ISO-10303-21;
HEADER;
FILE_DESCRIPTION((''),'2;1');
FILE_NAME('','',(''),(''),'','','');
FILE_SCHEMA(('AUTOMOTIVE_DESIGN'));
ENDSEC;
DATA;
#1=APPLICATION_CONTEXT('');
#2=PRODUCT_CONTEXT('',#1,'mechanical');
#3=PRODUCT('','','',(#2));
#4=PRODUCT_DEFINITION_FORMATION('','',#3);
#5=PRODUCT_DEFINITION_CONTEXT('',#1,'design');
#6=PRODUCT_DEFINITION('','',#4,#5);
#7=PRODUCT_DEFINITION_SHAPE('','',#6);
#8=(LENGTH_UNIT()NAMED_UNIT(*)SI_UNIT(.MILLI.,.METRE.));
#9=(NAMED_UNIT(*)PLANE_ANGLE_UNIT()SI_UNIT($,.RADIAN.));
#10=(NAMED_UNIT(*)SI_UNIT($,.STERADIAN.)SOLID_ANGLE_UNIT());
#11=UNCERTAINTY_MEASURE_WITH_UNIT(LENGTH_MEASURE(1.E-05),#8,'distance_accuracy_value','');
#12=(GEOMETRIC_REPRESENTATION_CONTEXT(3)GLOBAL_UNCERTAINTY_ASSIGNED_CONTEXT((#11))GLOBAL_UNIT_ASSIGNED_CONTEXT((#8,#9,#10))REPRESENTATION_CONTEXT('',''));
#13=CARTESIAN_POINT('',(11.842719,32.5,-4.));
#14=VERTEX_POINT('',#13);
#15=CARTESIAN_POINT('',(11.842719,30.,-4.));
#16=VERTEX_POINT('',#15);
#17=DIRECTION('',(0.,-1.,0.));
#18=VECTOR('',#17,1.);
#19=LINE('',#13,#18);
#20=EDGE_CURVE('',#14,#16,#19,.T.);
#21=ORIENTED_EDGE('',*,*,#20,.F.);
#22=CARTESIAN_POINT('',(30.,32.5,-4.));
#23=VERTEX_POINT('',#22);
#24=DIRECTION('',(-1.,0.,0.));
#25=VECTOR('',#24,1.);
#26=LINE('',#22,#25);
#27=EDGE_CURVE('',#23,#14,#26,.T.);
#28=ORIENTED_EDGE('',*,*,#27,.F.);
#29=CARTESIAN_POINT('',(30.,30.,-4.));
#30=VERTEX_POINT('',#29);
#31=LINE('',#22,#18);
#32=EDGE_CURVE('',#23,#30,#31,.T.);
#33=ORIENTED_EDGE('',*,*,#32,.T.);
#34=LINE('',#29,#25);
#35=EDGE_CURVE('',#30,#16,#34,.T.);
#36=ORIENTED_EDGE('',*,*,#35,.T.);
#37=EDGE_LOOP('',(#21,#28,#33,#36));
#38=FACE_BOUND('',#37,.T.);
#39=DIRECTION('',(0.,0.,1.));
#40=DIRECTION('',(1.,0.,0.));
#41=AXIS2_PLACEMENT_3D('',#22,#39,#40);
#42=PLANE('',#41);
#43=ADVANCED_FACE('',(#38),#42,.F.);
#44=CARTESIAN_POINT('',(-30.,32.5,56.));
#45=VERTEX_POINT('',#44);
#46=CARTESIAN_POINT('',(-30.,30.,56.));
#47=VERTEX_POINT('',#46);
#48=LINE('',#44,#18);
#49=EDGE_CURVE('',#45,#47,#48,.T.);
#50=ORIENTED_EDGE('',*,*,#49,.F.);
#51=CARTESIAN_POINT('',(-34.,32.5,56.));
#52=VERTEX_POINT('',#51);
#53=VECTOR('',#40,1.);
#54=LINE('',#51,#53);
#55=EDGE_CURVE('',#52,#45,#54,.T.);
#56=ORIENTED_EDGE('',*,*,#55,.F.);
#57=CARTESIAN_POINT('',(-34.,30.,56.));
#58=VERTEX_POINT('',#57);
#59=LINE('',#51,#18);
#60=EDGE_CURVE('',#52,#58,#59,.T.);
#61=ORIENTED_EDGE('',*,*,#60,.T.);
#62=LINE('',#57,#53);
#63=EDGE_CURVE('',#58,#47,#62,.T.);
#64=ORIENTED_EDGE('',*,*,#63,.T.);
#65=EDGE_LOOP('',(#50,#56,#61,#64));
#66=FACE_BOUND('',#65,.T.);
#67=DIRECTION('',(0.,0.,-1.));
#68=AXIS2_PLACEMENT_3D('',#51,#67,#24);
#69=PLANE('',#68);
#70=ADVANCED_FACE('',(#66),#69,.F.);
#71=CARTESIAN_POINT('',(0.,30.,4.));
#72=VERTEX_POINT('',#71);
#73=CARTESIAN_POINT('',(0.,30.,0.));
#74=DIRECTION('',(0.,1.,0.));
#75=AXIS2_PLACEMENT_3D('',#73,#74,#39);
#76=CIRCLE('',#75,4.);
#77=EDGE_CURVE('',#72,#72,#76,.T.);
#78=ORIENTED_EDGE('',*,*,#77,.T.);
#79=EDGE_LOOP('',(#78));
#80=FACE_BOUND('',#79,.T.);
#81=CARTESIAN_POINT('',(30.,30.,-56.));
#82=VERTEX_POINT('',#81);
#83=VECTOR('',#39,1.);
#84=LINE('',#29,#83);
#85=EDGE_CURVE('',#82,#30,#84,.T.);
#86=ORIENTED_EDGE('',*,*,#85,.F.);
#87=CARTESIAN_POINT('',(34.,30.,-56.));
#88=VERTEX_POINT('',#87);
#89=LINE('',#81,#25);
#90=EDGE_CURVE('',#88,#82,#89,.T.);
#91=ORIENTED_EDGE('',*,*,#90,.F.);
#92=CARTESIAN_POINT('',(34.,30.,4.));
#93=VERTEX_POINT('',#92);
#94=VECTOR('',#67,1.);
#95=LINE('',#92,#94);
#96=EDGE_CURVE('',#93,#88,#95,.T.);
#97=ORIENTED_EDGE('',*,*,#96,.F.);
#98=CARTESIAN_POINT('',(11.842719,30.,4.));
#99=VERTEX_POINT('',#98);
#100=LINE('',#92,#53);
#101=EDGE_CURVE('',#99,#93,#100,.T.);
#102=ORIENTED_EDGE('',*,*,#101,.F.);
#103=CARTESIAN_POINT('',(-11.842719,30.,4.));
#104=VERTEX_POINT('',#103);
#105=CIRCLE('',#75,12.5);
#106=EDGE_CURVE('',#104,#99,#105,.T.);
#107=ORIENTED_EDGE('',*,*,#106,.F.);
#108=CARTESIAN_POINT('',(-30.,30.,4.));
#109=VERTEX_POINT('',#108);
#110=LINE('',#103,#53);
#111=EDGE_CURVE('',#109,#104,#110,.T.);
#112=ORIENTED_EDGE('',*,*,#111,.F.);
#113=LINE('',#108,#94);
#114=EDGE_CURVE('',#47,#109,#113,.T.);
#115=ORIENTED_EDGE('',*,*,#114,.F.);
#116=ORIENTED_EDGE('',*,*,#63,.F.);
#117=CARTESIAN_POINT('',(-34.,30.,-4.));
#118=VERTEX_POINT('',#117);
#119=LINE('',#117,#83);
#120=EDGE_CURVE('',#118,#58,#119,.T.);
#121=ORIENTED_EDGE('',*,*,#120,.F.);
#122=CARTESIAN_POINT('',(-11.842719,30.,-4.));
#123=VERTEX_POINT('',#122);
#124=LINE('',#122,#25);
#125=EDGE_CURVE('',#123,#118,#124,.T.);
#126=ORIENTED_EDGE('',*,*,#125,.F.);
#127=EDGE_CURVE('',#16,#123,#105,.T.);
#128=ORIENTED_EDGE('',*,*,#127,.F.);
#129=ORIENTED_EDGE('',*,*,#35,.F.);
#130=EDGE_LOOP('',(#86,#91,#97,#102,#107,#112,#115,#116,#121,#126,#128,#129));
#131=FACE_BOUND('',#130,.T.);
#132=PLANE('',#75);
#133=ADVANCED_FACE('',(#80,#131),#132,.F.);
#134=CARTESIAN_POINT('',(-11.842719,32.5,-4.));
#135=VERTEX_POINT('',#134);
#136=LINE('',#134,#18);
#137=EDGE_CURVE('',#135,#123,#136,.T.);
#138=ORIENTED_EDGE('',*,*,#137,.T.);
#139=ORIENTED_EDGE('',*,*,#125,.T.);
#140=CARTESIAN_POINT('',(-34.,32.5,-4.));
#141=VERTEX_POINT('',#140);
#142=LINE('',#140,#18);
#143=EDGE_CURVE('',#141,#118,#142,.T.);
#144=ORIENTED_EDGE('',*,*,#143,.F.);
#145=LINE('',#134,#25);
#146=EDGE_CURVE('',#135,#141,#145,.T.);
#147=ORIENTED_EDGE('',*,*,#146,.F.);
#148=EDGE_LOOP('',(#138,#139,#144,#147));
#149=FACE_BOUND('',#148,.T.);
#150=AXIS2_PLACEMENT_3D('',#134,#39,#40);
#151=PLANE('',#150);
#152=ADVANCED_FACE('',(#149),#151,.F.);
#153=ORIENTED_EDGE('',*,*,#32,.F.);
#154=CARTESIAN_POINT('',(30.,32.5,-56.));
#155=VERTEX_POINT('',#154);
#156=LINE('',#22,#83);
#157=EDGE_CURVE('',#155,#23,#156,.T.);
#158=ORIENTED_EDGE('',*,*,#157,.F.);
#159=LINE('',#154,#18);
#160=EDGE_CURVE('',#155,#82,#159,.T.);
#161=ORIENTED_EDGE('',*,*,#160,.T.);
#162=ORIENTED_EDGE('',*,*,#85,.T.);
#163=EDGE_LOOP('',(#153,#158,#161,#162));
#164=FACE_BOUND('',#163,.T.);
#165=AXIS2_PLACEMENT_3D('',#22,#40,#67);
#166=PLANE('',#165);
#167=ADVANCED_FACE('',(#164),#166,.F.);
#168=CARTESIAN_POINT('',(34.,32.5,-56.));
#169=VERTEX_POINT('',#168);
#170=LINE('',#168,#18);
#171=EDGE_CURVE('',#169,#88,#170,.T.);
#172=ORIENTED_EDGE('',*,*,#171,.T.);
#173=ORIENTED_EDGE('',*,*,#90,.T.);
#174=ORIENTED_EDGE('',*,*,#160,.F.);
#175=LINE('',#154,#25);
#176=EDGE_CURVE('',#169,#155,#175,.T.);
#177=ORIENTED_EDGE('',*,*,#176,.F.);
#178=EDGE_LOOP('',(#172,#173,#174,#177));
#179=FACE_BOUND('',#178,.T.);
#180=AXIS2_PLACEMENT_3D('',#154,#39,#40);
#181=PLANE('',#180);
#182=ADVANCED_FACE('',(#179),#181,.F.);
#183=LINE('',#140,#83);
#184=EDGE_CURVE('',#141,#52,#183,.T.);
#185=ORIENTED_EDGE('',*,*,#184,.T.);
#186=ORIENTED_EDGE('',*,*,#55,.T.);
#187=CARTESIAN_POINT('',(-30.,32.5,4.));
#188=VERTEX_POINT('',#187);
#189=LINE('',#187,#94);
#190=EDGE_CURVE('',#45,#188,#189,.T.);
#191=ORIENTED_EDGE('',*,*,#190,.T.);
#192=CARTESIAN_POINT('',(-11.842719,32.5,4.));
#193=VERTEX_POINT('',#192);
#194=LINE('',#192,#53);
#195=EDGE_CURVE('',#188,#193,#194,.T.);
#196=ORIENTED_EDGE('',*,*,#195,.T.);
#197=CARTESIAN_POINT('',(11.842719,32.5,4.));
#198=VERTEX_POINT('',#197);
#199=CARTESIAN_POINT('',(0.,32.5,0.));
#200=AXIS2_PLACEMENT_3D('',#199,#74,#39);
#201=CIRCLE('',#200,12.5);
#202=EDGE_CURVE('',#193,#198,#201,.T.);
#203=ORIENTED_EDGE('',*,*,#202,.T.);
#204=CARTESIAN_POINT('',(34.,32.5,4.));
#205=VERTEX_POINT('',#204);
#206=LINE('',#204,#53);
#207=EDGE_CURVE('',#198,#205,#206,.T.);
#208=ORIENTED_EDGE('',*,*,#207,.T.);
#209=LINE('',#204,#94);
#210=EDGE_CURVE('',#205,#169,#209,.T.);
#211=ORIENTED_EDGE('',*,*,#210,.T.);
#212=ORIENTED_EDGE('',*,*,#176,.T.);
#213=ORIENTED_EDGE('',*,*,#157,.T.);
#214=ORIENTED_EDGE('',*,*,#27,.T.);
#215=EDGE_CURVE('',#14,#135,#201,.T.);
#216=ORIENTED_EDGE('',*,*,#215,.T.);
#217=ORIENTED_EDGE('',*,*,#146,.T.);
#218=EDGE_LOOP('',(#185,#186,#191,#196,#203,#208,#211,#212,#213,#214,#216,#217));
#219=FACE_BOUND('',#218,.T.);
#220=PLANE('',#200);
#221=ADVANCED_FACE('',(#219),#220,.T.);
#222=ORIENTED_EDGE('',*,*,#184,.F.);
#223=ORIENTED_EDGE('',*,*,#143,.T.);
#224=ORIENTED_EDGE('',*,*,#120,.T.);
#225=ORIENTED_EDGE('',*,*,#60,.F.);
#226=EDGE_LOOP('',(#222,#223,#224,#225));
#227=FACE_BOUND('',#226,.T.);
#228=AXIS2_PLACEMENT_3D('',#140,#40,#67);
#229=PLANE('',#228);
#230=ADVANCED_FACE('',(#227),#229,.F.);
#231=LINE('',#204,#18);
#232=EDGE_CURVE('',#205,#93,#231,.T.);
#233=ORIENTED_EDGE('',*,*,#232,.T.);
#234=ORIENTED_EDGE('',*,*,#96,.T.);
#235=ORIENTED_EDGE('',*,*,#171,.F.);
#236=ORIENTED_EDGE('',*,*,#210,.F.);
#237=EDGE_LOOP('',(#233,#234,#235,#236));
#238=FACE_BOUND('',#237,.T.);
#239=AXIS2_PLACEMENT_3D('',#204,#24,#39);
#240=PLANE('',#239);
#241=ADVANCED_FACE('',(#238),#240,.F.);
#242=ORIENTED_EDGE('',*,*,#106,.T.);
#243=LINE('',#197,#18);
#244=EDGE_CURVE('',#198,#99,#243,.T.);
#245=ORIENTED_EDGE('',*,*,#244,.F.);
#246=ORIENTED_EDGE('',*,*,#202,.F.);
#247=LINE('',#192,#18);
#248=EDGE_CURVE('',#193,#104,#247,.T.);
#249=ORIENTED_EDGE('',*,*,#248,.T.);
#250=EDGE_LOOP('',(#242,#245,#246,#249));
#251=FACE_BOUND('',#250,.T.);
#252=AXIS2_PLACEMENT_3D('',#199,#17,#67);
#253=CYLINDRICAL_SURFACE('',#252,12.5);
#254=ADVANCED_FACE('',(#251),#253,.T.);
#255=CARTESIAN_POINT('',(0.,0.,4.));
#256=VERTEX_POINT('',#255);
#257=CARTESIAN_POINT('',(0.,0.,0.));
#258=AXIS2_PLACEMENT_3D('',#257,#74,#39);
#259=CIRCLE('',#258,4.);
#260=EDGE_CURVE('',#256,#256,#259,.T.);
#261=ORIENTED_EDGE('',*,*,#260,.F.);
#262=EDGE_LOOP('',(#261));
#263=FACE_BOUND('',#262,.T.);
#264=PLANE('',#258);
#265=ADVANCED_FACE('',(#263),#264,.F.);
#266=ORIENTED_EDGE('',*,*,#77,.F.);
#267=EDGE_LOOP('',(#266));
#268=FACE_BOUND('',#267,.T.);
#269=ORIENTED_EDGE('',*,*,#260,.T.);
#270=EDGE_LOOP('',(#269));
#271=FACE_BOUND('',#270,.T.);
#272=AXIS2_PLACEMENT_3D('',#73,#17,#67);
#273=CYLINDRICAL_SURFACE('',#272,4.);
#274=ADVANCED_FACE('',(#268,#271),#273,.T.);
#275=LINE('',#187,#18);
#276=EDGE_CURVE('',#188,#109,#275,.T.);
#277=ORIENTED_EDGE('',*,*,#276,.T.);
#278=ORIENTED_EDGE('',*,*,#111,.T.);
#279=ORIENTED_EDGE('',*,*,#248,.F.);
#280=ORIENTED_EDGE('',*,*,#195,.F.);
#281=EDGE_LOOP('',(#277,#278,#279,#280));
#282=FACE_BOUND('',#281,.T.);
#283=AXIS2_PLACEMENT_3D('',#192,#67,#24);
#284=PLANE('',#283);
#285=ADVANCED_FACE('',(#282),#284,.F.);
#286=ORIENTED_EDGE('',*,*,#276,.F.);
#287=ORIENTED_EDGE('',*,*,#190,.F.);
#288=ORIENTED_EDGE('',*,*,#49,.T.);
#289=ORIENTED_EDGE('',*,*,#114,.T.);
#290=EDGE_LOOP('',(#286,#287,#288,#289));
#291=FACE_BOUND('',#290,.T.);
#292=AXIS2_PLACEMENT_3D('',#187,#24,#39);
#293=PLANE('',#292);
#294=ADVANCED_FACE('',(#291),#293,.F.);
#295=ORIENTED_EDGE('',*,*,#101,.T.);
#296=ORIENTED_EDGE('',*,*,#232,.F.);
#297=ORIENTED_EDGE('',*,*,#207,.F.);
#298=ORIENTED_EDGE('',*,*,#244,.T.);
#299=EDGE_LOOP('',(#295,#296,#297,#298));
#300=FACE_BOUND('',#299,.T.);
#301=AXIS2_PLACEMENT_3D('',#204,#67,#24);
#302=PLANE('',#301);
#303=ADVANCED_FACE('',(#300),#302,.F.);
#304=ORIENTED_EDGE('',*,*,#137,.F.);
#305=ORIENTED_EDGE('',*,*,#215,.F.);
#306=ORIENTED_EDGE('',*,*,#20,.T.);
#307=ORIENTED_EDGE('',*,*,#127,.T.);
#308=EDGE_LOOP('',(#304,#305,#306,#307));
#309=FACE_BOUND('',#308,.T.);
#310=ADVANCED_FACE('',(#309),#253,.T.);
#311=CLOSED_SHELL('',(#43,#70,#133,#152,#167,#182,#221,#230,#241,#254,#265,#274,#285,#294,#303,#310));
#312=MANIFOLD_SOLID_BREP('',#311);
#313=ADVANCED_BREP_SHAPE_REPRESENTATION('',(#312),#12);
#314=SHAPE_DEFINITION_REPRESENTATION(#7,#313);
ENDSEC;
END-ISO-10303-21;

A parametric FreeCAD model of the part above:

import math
import FreeCAD as App
import Part
import Sketcher

doc = App.newDocument("Part")
body = doc.addObject("PartDesign::Body", "Body")

# Sketch on XZ plane
sketch1 = body.newObject("Sketcher::SketchObject", "Sketch")
sketch1.AttachmentSupport = (doc.getObject("XZ_Plane"), [""])
sketch1.MapMode = "FlatFace"
sketch1.addGeometry(Part.Circle(App.Vector(0, 0, 0), App.Vector(0, 0, 1), 4), False)
sketch1.addConstraint([
    Sketcher.Constraint("Coincident", 0, 3, -1, 1),
    Sketcher.Constraint("Diameter", 0, 8.0),
])
pad1 = body.newObject("PartDesign::Pad", "Pad")
pad1.Profile = sketch1
pad1.Length = 30
pad1.Reversed = True

# Sketch on XZ plane
sketch2 = body.newObject("Sketcher::SketchObject", "Sketch001")
sketch2.AttachmentSupport = (doc.getObject("XZ_Plane"), [""])
sketch2.MapMode = "FlatFace"
sketch2.AttachmentOffset = App.Placement(App.Vector(0, 0, -30), App.Rotation())
sketch2.addGeometry([
    Part.LineSegment(App.Vector(30, -56, 0), App.Vector(30, -4, 0)),  # 0
    Part.LineSegment(App.Vector(30, -4, 0), App.Vector(11.8, -4, 0)),  # 1
    Part.ArcOfCircle(Part.Circle(App.Vector(0, 0, 0), App.Vector(0, 0, 1), 12.5), math.radians(-161), math.radians(-19)),  # 2
    Part.LineSegment(App.Vector(-11.8, -4, 0), App.Vector(-34, -4, 0)),  # 3
    Part.LineSegment(App.Vector(-34, -4, 0), App.Vector(-34, 56, 0)),  # 4
    Part.LineSegment(App.Vector(-34, 56, 0), App.Vector(-30, 56, 0)),  # 5
    Part.LineSegment(App.Vector(-30, 56, 0), App.Vector(-30, 4, 0)),  # 6
    Part.LineSegment(App.Vector(-30, 4, 0), App.Vector(-11.8, 4, 0)),  # 7
    Part.ArcOfCircle(Part.Circle(App.Vector(0, 0, 0), App.Vector(0, 0, 1), 12.5), math.radians(19), math.radians(161)),  # 8
    Part.LineSegment(App.Vector(11.8, 4, 0), App.Vector(34, 4, 0)),  # 9
    Part.LineSegment(App.Vector(34, 4, 0), App.Vector(34, -56, 0)),  # 10
    Part.LineSegment(App.Vector(34, -56, 0), App.Vector(30, -56, 0)),  # 11
], False)
sketch2.addConstraint([
    Sketcher.Constraint("Coincident", 0, 2, 1, 1),
    Sketcher.Constraint("Coincident", 1, 2, 2, 2),
    Sketcher.Constraint("Coincident", 2, 1, 3, 1),
    Sketcher.Constraint("Coincident", 3, 2, 4, 1),
    Sketcher.Constraint("Coincident", 4, 2, 5, 1),
    Sketcher.Constraint("Coincident", 5, 2, 6, 1),
    Sketcher.Constraint("Coincident", 6, 2, 7, 1),
    Sketcher.Constraint("Coincident", 7, 2, 8, 2),
    Sketcher.Constraint("Coincident", 8, 1, 9, 1),
    Sketcher.Constraint("Coincident", 9, 2, 10, 1),
    Sketcher.Constraint("Coincident", 10, 2, 11, 1),
    Sketcher.Constraint("Coincident", 11, 2, 0, 1),
    Sketcher.Constraint("Vertical", 0),
    Sketcher.Constraint("Horizontal", 1),
    Sketcher.Constraint("Horizontal", 3),
    Sketcher.Constraint("Vertical", 4),
    Sketcher.Constraint("Horizontal", 5),
    Sketcher.Constraint("Vertical", 6),
    Sketcher.Constraint("Horizontal", 7),
    Sketcher.Constraint("Horizontal", 9),
    Sketcher.Constraint("Vertical", 10),
    Sketcher.Constraint("Horizontal", 11),
    Sketcher.Constraint("Coincident", 2, 3, -1, 1),
    Sketcher.Constraint("Coincident", 8, 3, -1, 1),
    Sketcher.Constraint("Equal", 2, 8),
    Sketcher.Constraint("Symmetric", 0, 2, 6, 2, -1, 1),
    Sketcher.Constraint("Symmetric", 3, 2, 9, 2, -1, 1),
    Sketcher.Constraint("Horizontal", 1, 2, 2, 1),
    Sketcher.Constraint("Equal", 0, 6),
    Sketcher.Constraint("Radius", 2, 12.5),
    Sketcher.Constraint("DistanceX", 5, 1, 5, 2, 4.0),
    Sketcher.Constraint("DistanceY", 0, 1, 0, 2, 52.0),
    Sketcher.Constraint("DistanceY", 4, 1, 4, 2, 60.0),
    Sketcher.Constraint("DistanceX", -1, 1, 0, 2, 30.0),
])
pad2 = body.newObject("PartDesign::Pad", "Pad001")
pad2.Profile = sketch2
pad2.Length = 2.5
pad2.Reversed = True

doc.recompute()
